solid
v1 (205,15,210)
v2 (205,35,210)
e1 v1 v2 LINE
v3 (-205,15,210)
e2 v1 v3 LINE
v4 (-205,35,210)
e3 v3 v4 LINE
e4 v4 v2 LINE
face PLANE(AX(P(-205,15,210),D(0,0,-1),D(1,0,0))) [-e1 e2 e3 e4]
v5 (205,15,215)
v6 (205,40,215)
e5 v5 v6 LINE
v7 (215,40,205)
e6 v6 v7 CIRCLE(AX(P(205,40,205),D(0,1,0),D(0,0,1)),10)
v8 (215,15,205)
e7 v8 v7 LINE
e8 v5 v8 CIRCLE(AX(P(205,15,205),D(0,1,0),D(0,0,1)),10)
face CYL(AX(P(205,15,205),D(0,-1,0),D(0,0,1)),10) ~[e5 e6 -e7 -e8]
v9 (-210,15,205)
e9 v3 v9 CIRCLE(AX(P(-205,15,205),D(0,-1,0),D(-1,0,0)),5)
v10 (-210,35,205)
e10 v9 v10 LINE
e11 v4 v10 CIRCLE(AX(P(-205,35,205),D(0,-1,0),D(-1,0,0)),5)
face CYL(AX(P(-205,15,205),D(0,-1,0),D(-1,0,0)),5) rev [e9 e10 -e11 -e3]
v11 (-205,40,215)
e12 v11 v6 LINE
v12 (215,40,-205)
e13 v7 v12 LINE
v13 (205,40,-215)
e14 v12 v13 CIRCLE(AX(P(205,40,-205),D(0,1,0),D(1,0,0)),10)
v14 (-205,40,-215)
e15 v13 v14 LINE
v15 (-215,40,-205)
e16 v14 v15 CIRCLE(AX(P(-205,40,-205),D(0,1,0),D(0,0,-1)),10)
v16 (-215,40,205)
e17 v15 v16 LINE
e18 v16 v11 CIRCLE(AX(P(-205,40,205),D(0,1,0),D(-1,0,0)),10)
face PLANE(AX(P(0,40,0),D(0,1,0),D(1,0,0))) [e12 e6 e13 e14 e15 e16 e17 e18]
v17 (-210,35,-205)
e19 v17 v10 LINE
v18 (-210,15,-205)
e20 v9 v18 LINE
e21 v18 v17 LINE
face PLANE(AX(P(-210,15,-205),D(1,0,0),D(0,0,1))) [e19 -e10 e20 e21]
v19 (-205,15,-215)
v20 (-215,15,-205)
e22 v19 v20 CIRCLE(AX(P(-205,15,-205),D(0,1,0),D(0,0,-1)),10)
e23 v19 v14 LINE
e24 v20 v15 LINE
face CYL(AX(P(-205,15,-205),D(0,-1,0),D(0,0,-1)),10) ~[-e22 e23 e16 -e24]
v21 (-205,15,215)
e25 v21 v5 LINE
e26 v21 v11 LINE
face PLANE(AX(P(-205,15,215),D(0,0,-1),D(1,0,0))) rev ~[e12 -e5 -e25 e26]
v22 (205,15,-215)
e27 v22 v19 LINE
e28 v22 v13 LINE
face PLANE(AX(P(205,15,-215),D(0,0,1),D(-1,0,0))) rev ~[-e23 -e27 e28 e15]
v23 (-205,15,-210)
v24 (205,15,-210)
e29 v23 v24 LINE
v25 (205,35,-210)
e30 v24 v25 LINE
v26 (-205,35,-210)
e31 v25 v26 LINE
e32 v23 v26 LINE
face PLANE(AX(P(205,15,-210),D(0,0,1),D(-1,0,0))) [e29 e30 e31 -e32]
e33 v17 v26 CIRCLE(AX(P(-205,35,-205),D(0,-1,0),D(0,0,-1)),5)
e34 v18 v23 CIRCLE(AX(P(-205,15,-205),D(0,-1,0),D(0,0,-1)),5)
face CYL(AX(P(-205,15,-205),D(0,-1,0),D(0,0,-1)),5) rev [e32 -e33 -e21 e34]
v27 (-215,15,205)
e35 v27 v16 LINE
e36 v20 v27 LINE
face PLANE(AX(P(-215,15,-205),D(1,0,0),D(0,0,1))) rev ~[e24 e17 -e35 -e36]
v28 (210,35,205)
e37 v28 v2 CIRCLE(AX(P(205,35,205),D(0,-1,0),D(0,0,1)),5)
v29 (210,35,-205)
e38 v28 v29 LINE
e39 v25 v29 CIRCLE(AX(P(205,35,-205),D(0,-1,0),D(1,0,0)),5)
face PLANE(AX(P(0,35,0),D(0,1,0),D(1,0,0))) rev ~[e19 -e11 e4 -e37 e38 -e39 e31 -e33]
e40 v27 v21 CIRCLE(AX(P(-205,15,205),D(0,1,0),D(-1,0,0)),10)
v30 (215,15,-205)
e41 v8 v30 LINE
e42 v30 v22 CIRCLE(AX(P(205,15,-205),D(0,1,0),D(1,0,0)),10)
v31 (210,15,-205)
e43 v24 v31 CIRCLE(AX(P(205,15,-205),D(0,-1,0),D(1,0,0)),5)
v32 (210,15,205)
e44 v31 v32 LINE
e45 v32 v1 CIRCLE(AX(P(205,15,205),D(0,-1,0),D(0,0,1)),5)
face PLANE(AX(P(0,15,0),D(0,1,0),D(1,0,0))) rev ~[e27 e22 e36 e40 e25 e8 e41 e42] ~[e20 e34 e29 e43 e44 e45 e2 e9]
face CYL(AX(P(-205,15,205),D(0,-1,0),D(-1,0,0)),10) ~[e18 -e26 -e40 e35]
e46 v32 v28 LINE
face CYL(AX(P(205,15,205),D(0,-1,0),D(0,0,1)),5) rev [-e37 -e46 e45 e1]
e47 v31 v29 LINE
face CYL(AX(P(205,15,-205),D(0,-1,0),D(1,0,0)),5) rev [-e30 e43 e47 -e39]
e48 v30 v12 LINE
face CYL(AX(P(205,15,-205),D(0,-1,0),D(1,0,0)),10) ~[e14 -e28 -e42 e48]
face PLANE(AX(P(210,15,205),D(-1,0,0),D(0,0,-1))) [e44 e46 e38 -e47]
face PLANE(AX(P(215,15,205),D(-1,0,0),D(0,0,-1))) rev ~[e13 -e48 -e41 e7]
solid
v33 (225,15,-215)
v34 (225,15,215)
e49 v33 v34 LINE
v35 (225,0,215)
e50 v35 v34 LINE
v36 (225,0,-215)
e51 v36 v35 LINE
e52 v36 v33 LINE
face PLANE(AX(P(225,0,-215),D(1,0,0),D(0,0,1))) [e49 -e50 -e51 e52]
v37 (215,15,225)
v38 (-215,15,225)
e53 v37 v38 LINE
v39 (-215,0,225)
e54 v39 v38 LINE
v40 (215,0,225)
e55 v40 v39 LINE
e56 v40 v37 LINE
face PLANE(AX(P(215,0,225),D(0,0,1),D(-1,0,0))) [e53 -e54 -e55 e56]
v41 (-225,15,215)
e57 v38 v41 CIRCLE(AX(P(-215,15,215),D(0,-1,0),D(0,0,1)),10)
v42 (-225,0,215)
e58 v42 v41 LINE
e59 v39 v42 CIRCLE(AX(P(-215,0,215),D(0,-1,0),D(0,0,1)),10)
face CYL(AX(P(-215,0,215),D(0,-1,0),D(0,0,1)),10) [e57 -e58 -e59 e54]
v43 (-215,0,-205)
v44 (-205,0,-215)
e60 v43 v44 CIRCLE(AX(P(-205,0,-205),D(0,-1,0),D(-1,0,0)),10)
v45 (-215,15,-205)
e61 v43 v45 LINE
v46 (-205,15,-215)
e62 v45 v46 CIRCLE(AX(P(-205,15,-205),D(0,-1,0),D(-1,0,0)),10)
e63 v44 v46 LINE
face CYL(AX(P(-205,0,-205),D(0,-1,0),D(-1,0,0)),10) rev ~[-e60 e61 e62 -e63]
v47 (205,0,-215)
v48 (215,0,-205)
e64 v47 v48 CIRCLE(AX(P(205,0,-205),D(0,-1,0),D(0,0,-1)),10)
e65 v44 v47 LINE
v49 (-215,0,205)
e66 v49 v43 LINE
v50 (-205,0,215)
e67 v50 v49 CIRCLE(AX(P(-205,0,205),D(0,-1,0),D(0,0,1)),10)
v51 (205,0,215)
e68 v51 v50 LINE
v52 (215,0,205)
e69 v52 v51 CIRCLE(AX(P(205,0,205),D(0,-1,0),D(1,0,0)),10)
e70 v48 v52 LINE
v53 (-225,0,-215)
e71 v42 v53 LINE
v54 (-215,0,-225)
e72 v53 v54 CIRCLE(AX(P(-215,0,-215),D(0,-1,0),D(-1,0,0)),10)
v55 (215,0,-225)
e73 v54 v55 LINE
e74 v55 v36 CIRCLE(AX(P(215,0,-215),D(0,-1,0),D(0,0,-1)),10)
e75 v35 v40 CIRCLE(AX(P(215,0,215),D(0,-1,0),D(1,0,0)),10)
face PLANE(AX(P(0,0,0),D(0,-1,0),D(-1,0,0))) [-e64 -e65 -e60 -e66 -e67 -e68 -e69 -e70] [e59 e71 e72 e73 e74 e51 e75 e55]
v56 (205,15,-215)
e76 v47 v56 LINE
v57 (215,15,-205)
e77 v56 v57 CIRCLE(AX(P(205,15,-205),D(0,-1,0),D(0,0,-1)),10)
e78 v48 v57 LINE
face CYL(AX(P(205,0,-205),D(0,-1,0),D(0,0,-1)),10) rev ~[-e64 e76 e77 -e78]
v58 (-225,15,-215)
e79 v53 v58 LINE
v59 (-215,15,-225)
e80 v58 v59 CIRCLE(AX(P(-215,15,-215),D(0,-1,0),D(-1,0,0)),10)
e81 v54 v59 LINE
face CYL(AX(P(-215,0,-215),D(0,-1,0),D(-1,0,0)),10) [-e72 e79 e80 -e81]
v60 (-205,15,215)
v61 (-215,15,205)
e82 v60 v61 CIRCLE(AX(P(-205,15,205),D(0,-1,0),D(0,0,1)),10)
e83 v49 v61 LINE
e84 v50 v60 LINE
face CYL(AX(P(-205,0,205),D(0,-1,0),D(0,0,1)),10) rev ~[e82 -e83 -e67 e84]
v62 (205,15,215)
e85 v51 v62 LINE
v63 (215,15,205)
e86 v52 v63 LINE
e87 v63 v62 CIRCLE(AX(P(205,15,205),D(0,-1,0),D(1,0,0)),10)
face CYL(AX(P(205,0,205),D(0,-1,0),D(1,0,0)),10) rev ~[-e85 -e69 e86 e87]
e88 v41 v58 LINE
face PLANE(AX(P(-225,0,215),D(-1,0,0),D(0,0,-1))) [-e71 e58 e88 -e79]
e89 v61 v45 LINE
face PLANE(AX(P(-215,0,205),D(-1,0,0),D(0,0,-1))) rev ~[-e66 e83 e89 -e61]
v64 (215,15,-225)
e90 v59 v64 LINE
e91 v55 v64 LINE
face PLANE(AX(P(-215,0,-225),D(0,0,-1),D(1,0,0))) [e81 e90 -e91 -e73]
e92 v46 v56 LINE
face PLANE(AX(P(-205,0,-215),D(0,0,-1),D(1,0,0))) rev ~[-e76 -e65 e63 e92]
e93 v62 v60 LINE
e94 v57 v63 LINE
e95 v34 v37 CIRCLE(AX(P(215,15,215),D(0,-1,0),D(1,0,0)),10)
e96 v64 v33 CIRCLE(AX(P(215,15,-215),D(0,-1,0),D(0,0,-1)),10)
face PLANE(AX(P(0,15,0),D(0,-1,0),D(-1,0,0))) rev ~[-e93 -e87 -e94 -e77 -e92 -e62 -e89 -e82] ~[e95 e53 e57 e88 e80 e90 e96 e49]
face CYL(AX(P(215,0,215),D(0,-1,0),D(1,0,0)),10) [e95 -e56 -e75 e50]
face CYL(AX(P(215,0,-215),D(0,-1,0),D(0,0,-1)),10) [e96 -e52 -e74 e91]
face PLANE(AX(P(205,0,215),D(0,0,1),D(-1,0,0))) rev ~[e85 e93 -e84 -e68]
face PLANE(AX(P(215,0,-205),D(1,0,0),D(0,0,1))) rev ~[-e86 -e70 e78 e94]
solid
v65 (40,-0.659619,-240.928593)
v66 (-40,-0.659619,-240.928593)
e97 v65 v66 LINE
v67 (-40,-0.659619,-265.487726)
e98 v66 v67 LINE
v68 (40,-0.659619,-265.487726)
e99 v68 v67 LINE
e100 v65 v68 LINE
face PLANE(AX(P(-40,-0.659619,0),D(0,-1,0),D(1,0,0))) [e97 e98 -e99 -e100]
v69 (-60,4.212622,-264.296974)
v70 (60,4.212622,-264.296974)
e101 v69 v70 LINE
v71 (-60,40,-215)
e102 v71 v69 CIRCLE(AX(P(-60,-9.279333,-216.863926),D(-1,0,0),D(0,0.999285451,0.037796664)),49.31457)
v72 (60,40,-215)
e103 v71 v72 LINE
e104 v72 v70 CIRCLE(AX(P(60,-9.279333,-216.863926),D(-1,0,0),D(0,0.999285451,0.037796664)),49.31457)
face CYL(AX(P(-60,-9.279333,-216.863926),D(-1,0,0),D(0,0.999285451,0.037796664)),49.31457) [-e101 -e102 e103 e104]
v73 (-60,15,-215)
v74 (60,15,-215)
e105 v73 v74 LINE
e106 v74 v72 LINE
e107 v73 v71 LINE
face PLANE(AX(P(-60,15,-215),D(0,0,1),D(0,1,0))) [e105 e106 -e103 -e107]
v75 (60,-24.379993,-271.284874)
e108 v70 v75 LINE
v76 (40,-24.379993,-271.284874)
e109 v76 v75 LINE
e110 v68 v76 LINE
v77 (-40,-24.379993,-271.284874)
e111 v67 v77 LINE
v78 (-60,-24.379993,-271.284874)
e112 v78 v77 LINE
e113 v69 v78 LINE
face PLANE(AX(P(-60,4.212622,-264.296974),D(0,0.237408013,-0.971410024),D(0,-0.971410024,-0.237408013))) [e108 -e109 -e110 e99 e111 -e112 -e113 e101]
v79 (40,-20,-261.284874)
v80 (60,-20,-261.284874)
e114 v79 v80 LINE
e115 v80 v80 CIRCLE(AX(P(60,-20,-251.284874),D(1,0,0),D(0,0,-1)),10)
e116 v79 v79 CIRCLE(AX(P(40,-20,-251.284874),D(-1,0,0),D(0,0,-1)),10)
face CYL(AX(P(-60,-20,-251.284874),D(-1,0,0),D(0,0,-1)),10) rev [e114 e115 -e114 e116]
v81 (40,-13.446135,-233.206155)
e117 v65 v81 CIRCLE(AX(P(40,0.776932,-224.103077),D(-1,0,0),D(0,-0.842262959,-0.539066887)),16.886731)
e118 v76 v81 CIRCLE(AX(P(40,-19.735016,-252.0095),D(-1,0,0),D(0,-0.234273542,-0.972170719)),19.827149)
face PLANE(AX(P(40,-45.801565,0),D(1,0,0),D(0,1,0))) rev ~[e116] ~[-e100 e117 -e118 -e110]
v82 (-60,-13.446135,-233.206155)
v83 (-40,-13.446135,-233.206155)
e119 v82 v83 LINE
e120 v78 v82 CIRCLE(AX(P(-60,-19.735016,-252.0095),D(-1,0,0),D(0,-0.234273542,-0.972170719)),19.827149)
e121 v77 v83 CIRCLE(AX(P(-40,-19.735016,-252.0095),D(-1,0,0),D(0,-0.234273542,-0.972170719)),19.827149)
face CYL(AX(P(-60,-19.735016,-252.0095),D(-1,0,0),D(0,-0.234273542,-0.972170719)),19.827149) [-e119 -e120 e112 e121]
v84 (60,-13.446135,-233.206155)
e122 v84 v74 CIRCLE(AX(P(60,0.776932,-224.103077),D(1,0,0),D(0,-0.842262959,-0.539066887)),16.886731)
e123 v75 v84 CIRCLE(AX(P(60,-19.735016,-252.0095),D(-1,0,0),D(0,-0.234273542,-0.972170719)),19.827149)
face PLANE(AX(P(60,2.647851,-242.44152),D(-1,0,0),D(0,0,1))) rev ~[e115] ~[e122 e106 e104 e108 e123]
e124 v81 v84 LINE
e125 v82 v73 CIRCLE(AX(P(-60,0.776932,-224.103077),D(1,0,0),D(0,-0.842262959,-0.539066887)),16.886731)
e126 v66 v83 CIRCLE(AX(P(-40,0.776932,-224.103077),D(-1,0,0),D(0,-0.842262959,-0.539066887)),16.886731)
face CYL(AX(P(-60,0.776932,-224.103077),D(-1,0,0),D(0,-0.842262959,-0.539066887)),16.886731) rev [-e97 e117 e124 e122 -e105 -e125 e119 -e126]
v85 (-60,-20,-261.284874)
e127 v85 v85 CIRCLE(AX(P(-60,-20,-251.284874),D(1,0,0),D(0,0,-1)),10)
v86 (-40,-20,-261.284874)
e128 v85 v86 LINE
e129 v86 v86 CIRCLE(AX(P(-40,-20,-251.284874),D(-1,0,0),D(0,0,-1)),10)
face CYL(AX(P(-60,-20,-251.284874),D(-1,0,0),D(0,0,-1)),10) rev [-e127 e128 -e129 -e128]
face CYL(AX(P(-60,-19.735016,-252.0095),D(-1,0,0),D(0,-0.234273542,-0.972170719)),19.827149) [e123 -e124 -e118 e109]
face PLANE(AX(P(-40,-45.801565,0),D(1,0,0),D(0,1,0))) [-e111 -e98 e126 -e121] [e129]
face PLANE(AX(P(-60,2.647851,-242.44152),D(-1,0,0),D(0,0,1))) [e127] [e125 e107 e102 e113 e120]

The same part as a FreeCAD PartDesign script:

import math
import FreeCAD as App
import Part
import Sketcher
from FreeCAD import Vector
Q = App.Units.Quantity


def faces_at(feature, points):
    """Names of the faces that lie closest to the given points."""
    faces = feature.Shape.Faces
    near = lambda p: min(range(len(faces)), key=lambda i: faces[i].distToShape(Part.Vertex(*p))[0])
    return sorted({f"Face{near(p) + 1}" for p in points})


def add_polygon(sketch, points):
    """Adds a closed chain of lines whose ends are joined by coincident constraints."""
    first, n = sketch.GeometryCount, len(points)
    for a, b in zip(points, points[1:] + points[:1]):
        sketch.addGeometry(Part.LineSegment(App.Vector(*a, 0), App.Vector(*b, 0)), False)
    for i in range(n):
        sketch.addConstraint(Sketcher.Constraint("Coincident", first + i, 2, first + (i + 1) % n, 1))

doc = App.newDocument("Part")
body = doc.addObject("PartDesign::Body", "Body")

# Sketch on XZ plane
sketch1 = body.newObject("Sketcher::SketchObject", "Sketch")
sketch1.AttachmentSupport = (doc.getObject("XZ_Plane"), [""])
sketch1.MapMode = "FlatFace"
sketch1.addGeometry([
    Part.LineSegment(Vector(215, -225, 0), Vector(-215, -225, 0)),  # 0
    Part.ArcOfCircle(Part.Circle(Vector(-215, -215, 0), Vector(0, 0, 1), 10), math.radians(180), math.radians(270)),  # 1
    Part.LineSegment(Vector(-225, -215, 0), Vector(-225, 215, 0)),  # 2
    Part.ArcOfCircle(Part.Circle(Vector(-215, 215, 0), Vector(0, 0, 1), 10), math.radians(90), math.radians(180)),  # 3
    Part.LineSegment(Vector(-215, 225, 0), Vector(215, 225, 0)),  # 4
    Part.ArcOfCircle(Part.Circle(Vector(215, 215, 0), Vector(0, 0, 1), 10), math.radians(0), math.radians(90)),  # 5
    Part.LineSegment(Vector(225, 215, 0), Vector(225, -215, 0)),  # 6
    Part.ArcOfCircle(Part.Circle(Vector(215, -215, 0), Vector(0, 0, 1), 10), math.radians(-90), math.radians(0)),  # 7
    Part.LineSegment(Vector(-205, -215, 0), Vector(205, -215, 0)),  # 8
    Part.ArcOfCircle(Part.Circle(Vector(205, -205, 0), Vector(0, 0, 1), 10), math.radians(-90), math.radians(0)),  # 9
    Part.LineSegment(Vector(215, -205, 0), Vector(215, 205, 0)),  # 10
    Part.ArcOfCircle(Part.Circle(Vector(205, 205, 0), Vector(0, 0, 1), 10), math.radians(0), math.radians(90)),  # 11
    Part.LineSegment(Vector(205, 215, 0), Vector(-205, 215, 0)),  # 12
    Part.ArcOfCircle(Part.Circle(Vector(-205, 205, 0), Vector(0, 0, 1), 10), math.radians(90), math.radians(180)),  # 13
    Part.LineSegment(Vector(-215, 205, 0), Vector(-215, -205, 0)),  # 14
    Part.ArcOfCircle(Part.Circle(Vector(-205, -205, 0), Vector(0, 0, 1), 10), math.radians(180), math.radians(270)),  # 15
], False)
sketch1.addConstraint([
    Sketcher.Constraint("Tangent", 0, 2, 1, 2),
    Sketcher.Constraint("Tangent", 1, 1, 2, 1),
    Sketcher.Constraint("Tangent", 2, 2, 3, 2),
    Sketcher.Constraint("Tangent", 3, 1, 4, 1),
    Sketcher.Constraint("Tangent", 4, 2, 5, 2),
    Sketcher.Constraint("Tangent", 5, 1, 6, 1),
    Sketcher.Constraint("Tangent", 6, 2, 7, 2),
    Sketcher.Constraint("Tangent", 7, 1, 0, 1),
    Sketcher.Constraint("Tangent", 8, 2, 9, 1),
    Sketcher.Constraint("Tangent", 9, 2, 10, 1),
    Sketcher.Constraint("Tangent", 10, 2, 11, 1),
    Sketcher.Constraint("Tangent", 11, 2, 12, 1),
    Sketcher.Constraint("Tangent", 12, 2, 13, 1),
    Sketcher.Constraint("Tangent", 13, 2, 14, 1),
    Sketcher.Constraint("Tangent", 14, 2, 15, 1),
    Sketcher.Constraint("Tangent", 15, 2, 8, 1),
    Sketcher.Constraint("Horizontal", 0),
    Sketcher.Constraint("Vertical", 2),
    Sketcher.Constraint("Horizontal", 4),
    Sketcher.Constraint("Vertical", 6),
    Sketcher.Constraint("Horizontal", 8),
    Sketcher.Constraint("Vertical", 10),
    Sketcher.Constraint("Horizontal", 12),
    Sketcher.Constraint("Vertical", 14),
    Sketcher.Constraint("Equal", 1, 3),
    Sketcher.Constraint("Equal", 3, 5),
    Sketcher.Constraint("Equal", 5, 7),
    Sketcher.Constraint("Equal", 7, 9),
    Sketcher.Constraint("Equal", 9, 11),
    Sketcher.Constraint("Equal", 11, 13),
    Sketcher.Constraint("Equal", 13, 15),
    Sketcher.Constraint("Symmetric", 1, 3, 5, 3, -1, 1),
    Sketcher.Constraint("Symmetric", 9, 3, 13, 3, -1, 1),
    Sketcher.Constraint("Horizontal", 6, 2, 8, 2),
    Sketcher.Constraint("Vertical", 7, 1, 9, 2),
    Sketcher.Constraint("Equal", 4, 2),
    Sketcher.Constraint("Radius", 1, Q("10 mm")),
    Sketcher.Constraint("DistanceX", 0, 2, 0, 1, Q("430 mm")),
])
pad1 = body.newObject("PartDesign::Pad", "Pad")
pad1.Profile = sketch1
pad1.Length = 15
pad1.Reversed = True
body2 = doc.addObject("PartDesign::Body", "Body001")

# Sketch on XZ plane
sketch2 = body2.newObject("Sketcher::SketchObject", "Sketch001")
sketch2.AttachmentSupport = (doc.getObject("XZ_Plane001"), [""])
sketch2.MapMode = "FlatFace"
sketch2.AttachmentOffset = App.Placement(Vector(0, 0, -15), App.Rotation())
sketch2.addGeometry([
    Part.LineSegment(Vector(-205, 215, 0), Vector(205, 215, 0)),  # 0
    Part.ArcOfCircle(Part.Circle(Vector(205, 205, 0), Vector(0, 0, 1), 10), math.radians(0), math.radians(90)),  # 1
    Part.LineSegment(Vector(215, 205, 0), Vector(215, -205, 0)),  # 2
    Part.ArcOfCircle(Part.Circle(Vector(205, -205, 0), Vector(0, 0, 1), 10), math.radians(-90), math.radians(0)),  # 3
    Part.LineSegment(Vector(205, -215, 0), Vector(-205, -215, 0)),  # 4
    Part.ArcOfCircle(Part.Circle(Vector(-205, -205, 0), Vector(0, 0, 1), 10), math.radians(180), math.radians(270)),  # 5
    Part.LineSegment(Vector(-215, -205, 0), Vector(-215, 205, 0)),  # 6
    Part.ArcOfCircle(Part.Circle(Vector(-205, 205, 0), Vector(0, 0, 1), 10), math.radians(90), math.radians(180)),  # 7
], False)
sketch2.addConstraint([
    Sketcher.Constraint("Tangent", 0, 2, 1, 2),
    Sketcher.Constraint("Tangent", 1, 1, 2, 1),
    Sketcher.Constraint("Tangent", 2, 2, 3, 2),
    Sketcher.Constraint("Tangent", 3, 1, 4, 1),
    Sketcher.Constraint("Tangent", 4, 2, 5, 2),
    Sketcher.Constraint("Tangent", 5, 1, 6, 1),
    Sketcher.Constraint("Tangent", 6, 2, 7, 2),
    Sketcher.Constraint("Tangent", 7, 1, 0, 1),
    Sketcher.Constraint("Horizontal", 0),
    Sketcher.Constraint("Vertical", 2),
    Sketcher.Constraint("Horizontal", 4),
    Sketcher.Constraint("Vertical", 6),
    Sketcher.Constraint("Equal", 1, 3),
    Sketcher.Constraint("Equal", 3, 5),
    Sketcher.Constraint("Equal", 5, 7),
    Sketcher.Constraint("Symmetric", 1, 3, 5, 3, -1, 1),
    Sketcher.Constraint("Equal", 4, 2),
    Sketcher.Constraint("Radius", 1, Q("10 mm")),
    Sketcher.Constraint("DistanceX", 0, 1, 0, 2, Q("410 mm")),
])
pad2 = body2.newObject("PartDesign::Pad", "Pad001")
pad2.Profile = sketch2
pad2.Length = 25
pad2.Reversed = True
doc.recompute()

thickness = body2.newObject("PartDesign::Thickness", "Thickness")
thickness.Base = (pad2, faces_at(pad2, [(0, 15, 0)]))
thickness.Value = 5
thickness.Reversed = True
thickness.Join = "Intersection"
body3 = doc.addObject("PartDesign::Body", "Body002")

# Sketch on YZ plane
sketch3 = body3.newObject("Sketcher::SketchObject", "Sketch002")
sketch3.AttachmentSupport = (doc.getObject("YZ_Plane002"), [""])
sketch3.MapMode = "FlatFace"
sketch3.addGeometry([
    Part.LineSegment(Vector(-24.379993, -271.284874, 0), Vector(4.212622, -264.296974, 0)),  # 0
    Part.ArcOfCircle(Part.Circle(Vector(-9.279333, -216.863926, 0), Vector(0, 0, 1), 49.31457), math.radians(-74.122017), math.radians(2.166105)),  # 1
    Part.LineSegment(Vector(40, -215, 0), Vector(15, -215, 0)),  # 2
    Part.ArcOfCircle(Part.Circle(Vector(0.776932, -224.103077, 0), Vector(0, 0, 1), 16.886731), math.radians(-147.37986), math.radians(32.62014)),  # 3
    Part.ArcOfCircle(Part.Circle(Vector(-19.735016, -252.0095, 0), Vector(0, 0, 1), 19.827149), math.radians(71.507209), math.radians(256.451196)),  # 4
    Part.Circle(Vector(-20, -251.284874, 0), Vector(0, 0, 1), 10),  # 5
], False)
sketch3.addConstraint([
    Sketcher.Constraint("Coincident", 0, 2, 1, 1),
    Sketcher.Constraint("Coincident", 1, 2, 2, 1),
    Sketcher.Constraint("Coincident", 2, 2, 3, 2),
    Sketcher.Constraint("Coincident", 3, 1, 4, 1),
    Sketcher.Constraint("Coincident", 4, 2, 0, 1),
    Sketcher.Constraint("Horizontal", 2),
    Sketcher.Constraint("Diameter", 5, Q("20 mm")),
    Sketcher.Constraint("DistanceX", 2, 2, 2, 1, Q("25 mm")),
    Sketcher.Constraint("DistanceX", 5, 3, -1, 1, Q("20 mm")),
    Sketcher.Constraint("DistanceX", -1, 1, 1, 2, Q("40 mm")),
    Sketcher.Constraint("DistanceY", 1, 2, -1, 1, Q("215 mm")),
    Sketcher.Constraint("DistanceY", 4, 2, 5, 3, Q("20 mm")),
    Sketcher.Constraint("Radius", 1, Q("49.31457 mm")),
    Sketcher.Constraint("Radius", 3, Q("16.886731 mm")),
    Sketcher.Constraint("Radius", 4, Q("19.827149 mm")),
    Sketcher.Constraint("DistanceY", 4, 3, -1, 1, Q("252.0095 mm")),
    Sketcher.Constraint("DistanceY", 0, 2, 5, 3, Q("13.0121 mm")),
    Sketcher.Constraint("DistanceY", 3, 3, 1, 3, Q("7.239151 mm")),
    Sketcher.Constraint("DistanceX", 4, 3, 3, 3, Q("20.511949 mm")),
    Sketcher.Constraint("DistanceX", 4, 3, 0, 2, Q("23.947638 mm")),
    Sketcher.Constraint("DistanceY", 3, 1, 1, 3, Q("16.342228 mm")),
])
pad3 = body3.newObject("PartDesign::Pad", "Pad002")
pad3.Profile = sketch3
pad3.Type = "TwoLengths"
pad3.Length = 60
pad3.Length2 = 60

# Sketch on XY plane
sketch4 = body3.newObject("Sketcher::SketchObject", "Sketch003")
sketch4.AttachmentSupport = (doc.getObject("XY_Plane002"), [""])
sketch4.MapMode = "FlatFace"
add_polygon(sketch4, [(-40, -0.659619), (-40, -45.801565), (40, -45.801565), (40, -0.659619)])  # lines 0-3
sketch4.addConstraint([
    Sketcher.Constraint("Vertical", 0),
    Sketcher.Constraint("Horizontal", 1),
    Sketcher.Constraint("Vertical", 2),
    Sketcher.Constraint("Horizontal", 3),
    Sketcher.Constraint("DistanceX", 1, 1, 1, 2, Q("80 mm")),
    Sketcher.Constraint("DistanceX", 0, 2, -1, 1, Q("40 mm")),
    Sketcher.Constraint("DistanceY", 0, 2, 0, 1, Q("45.141946 mm")),
    Sketcher.Constraint("DistanceY", 2, 2, -1, 1, Q("0.659619 mm")),
])
pocket1 = body3.newObject("PartDesign::Pocket", "Pocket")
pocket1.Profile = sketch4
pocket1.Length = 377

doc.recompute()
